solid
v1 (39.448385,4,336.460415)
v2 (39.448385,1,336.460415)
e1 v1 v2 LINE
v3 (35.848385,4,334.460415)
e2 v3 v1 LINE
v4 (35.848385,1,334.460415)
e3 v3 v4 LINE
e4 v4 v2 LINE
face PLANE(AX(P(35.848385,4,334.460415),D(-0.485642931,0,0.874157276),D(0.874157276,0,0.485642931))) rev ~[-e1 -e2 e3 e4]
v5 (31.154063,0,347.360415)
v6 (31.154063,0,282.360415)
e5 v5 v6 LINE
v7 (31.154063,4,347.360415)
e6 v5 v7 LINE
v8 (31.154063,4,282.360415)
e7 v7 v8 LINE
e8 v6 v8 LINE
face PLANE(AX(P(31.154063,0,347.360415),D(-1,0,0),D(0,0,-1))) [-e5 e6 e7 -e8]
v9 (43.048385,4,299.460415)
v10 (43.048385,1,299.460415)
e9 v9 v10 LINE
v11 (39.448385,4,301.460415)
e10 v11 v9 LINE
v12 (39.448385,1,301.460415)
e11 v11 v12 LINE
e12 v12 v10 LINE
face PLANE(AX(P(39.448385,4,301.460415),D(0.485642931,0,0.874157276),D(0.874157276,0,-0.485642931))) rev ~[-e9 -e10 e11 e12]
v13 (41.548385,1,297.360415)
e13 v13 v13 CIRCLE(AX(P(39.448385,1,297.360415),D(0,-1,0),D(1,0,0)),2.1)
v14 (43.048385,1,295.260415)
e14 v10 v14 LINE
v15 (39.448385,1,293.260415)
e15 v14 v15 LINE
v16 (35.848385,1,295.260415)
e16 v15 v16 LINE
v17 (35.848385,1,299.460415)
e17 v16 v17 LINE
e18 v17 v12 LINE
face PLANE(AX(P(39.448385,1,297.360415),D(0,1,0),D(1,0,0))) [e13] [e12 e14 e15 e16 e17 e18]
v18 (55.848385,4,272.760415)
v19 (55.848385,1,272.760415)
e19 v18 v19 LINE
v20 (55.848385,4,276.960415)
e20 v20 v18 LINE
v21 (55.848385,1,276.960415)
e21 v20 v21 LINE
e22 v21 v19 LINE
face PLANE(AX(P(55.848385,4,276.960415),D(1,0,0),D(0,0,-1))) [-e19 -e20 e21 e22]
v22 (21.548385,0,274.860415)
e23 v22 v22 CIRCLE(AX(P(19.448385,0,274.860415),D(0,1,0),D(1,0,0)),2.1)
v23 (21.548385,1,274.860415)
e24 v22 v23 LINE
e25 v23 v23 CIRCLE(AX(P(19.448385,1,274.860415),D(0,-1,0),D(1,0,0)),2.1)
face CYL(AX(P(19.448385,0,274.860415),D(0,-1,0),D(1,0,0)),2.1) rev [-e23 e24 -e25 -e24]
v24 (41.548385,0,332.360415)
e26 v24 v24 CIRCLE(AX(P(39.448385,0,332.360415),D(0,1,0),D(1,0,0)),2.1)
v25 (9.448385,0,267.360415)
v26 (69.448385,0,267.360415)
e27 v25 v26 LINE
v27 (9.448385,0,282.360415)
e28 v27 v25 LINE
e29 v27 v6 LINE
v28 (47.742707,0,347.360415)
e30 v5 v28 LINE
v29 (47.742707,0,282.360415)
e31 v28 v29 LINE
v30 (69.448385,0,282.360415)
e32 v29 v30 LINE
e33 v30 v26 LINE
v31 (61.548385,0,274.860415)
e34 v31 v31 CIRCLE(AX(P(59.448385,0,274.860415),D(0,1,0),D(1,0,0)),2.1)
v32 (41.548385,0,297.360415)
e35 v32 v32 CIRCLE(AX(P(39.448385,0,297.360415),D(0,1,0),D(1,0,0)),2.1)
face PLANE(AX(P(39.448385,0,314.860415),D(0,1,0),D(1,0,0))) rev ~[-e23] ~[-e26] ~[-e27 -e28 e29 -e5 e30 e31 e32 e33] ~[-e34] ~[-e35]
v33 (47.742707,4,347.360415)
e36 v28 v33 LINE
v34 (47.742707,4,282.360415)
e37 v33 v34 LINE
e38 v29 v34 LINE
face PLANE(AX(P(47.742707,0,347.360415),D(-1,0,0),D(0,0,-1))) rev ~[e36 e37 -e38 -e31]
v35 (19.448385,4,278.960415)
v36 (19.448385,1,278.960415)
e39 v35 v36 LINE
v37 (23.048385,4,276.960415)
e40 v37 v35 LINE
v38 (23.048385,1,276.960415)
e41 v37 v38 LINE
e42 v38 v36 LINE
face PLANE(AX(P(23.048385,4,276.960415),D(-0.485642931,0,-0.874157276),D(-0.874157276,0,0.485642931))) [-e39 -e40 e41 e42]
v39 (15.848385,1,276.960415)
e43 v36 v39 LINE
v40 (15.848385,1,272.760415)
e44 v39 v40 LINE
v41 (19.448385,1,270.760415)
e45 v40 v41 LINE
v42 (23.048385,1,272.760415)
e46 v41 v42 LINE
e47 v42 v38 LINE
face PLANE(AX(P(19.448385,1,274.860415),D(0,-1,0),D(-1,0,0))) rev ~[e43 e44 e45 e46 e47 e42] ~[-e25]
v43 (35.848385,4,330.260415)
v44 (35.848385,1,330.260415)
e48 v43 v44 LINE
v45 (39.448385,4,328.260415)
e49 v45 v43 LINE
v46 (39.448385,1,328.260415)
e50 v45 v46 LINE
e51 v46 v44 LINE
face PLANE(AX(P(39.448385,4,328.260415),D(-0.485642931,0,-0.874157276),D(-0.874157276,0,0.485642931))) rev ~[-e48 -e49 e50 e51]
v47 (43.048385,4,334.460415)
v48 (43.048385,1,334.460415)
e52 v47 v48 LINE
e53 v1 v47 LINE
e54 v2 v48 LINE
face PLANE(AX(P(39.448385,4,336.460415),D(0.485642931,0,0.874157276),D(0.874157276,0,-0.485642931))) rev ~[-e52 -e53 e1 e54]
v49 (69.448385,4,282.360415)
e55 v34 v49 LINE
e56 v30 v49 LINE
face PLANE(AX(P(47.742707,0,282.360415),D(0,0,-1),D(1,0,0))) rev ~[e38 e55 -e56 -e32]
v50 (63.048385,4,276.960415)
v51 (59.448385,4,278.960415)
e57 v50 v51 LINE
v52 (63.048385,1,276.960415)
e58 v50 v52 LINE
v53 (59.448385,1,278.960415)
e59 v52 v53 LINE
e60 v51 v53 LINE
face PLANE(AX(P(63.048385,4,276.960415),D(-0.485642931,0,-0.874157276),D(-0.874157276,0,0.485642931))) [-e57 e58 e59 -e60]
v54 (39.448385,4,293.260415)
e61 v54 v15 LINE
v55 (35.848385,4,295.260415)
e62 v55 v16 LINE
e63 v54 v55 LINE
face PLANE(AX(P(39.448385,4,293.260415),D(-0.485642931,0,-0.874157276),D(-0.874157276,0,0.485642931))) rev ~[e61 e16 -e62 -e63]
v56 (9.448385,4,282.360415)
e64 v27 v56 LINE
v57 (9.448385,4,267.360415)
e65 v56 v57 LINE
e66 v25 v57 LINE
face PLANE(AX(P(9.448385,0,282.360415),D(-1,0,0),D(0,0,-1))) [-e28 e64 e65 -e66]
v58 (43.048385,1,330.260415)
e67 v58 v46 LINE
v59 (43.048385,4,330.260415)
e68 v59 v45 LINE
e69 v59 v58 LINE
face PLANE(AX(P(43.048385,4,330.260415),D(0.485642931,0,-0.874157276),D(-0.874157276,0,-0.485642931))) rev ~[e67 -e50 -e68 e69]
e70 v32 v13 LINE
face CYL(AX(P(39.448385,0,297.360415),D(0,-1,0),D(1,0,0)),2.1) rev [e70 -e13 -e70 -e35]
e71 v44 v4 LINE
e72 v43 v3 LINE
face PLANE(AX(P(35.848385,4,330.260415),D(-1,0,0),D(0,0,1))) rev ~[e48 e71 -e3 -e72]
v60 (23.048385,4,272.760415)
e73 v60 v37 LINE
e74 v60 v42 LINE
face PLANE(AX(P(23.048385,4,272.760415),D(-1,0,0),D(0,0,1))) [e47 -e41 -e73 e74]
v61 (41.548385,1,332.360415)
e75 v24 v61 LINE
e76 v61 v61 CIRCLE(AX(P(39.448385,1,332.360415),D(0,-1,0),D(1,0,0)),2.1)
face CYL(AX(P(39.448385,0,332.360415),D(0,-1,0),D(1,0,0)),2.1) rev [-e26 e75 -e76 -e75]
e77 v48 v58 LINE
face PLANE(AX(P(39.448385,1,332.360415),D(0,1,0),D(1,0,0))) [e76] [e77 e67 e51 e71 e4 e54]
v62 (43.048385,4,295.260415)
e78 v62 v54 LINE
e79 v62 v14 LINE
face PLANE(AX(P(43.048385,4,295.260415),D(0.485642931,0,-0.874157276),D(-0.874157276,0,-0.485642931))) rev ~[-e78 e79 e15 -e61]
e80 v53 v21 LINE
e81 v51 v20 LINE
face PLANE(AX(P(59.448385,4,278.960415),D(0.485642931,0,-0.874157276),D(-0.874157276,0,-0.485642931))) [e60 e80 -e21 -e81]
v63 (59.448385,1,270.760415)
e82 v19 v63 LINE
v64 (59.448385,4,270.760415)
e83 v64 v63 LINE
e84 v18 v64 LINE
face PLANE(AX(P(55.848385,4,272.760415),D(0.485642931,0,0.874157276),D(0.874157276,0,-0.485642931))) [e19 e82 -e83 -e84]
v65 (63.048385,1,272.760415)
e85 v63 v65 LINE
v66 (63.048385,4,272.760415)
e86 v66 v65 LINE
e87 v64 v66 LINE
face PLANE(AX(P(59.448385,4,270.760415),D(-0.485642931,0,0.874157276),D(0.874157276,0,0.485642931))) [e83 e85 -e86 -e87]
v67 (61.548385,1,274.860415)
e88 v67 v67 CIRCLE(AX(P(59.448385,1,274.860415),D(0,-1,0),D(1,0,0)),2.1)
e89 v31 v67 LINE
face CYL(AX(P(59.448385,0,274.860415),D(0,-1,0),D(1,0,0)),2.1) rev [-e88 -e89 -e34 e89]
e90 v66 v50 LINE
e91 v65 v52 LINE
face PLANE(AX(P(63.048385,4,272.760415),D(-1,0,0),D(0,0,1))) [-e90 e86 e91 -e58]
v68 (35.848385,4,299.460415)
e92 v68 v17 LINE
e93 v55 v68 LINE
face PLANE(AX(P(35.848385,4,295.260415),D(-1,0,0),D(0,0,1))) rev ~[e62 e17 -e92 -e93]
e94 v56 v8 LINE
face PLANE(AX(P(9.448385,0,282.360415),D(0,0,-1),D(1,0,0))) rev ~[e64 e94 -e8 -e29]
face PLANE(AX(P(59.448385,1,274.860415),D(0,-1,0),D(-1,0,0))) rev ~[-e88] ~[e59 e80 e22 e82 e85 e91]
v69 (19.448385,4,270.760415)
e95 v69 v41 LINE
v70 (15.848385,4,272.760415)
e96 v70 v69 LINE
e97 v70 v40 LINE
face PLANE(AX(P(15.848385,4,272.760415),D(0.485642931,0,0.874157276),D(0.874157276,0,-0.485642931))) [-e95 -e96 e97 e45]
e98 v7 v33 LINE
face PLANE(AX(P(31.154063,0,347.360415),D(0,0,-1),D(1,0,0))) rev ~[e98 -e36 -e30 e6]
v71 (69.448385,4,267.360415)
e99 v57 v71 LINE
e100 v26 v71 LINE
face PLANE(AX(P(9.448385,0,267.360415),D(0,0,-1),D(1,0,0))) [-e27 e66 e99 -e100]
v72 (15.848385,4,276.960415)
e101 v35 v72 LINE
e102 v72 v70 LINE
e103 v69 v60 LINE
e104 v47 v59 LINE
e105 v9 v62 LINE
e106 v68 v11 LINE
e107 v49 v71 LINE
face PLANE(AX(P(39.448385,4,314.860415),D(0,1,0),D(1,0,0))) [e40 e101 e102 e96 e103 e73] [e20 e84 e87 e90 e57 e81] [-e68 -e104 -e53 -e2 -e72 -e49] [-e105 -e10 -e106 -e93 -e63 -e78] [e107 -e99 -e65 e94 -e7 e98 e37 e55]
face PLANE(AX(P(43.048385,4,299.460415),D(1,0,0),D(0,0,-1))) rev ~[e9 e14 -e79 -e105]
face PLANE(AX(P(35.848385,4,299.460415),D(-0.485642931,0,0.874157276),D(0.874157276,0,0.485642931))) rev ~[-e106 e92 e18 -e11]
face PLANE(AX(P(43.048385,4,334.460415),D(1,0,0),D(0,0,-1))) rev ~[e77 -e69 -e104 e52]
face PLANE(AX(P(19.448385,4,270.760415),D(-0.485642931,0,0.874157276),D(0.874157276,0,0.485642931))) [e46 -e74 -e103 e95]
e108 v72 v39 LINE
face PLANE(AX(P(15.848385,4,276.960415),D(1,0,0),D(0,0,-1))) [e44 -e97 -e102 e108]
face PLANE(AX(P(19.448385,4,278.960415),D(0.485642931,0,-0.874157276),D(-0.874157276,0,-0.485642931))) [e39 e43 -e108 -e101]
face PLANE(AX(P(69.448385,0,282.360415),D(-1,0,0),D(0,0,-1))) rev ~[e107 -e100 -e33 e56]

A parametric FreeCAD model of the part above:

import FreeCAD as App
import Part
import Sketcher
from FreeCAD import Vector


def add_polygon(sketch, points):
    """Adds a closed chain of lines whose ends are joined by coincident constraints."""
    first, n = sketch.GeometryCount, len(points)
    for a, b in zip(points, points[1:] + points[:1]):
        sketch.addGeometry(Part.LineSegment(App.Vector(*a, 0), App.Vector(*b, 0)), False)
    for i in range(n):
        sketch.addConstraint(Sketcher.Constraint("Coincident", first + i, 2, first + (i + 1) % n, 1))

doc = App.newDocument("Part")
body = doc.addObject("PartDesign::Body", "Body")

sketch1 = body.newObject("Sketcher::SketchObject", "Sketch")
sketch1.AttachmentSupport = (doc.getObject("XZ_Plane"), [""])
sketch1.MapMode = "FlatFace"
add_polygon(sketch1, [(31.154063, 282.360415), (31.154063, 347.360415), (47.742707, 347.360415), (47.742707, 282.360415), (69.448385, 282.360415), (69.448385, 267.360415), (9.448385, 267.360415), (9.448385, 282.360415)])
sketch1.addGeometry(Part.Circle(Vector(39.448385, 332.360415, 0), Vector(0, 0, 1), 2.1), False)
sketch1.addGeometry(Part.Circle(Vector(19.448385, 274.860415, 0), Vector(0, 0, 1), 2.1), False)
sketch1.addGeometry(Part.Circle(Vector(39.448385, 297.360415, 0), Vector(0, 0, 1), 2.1), False)
sketch1.addGeometry(Part.Circle(Vector(59.448385, 274.860415, 0), Vector(0, 0, 1), 2.1), False)
sketch1.addConstraint(Sketcher.Constraint("Vertical", 0))
sketch1.addConstraint(Sketcher.Constraint("Horizontal", 1))
sketch1.addConstraint(Sketcher.Constraint("Vertical", 2))
sketch1.addConstraint(Sketcher.Constraint("Horizontal", 3))
sketch1.addConstraint(Sketcher.Constraint("Vertical", 4))
sketch1.addConstraint(Sketcher.Constraint("Horizontal", 5))
sketch1.addConstraint(Sketcher.Constraint("Vertical", 6))
sketch1.addConstraint(Sketcher.Constraint("Horizontal", 7))
sketch1.addConstraint(Sketcher.Constraint("Equal", 8, 9))
sketch1.addConstraint(Sketcher.Constraint("Equal", 9, 10))
sketch1.addConstraint(Sketcher.Constraint("Equal", 10, 11))
sketch1.addConstraint(Sketcher.Constraint("Horizontal", 9, 3, 11, 3))
sketch1.addConstraint(Sketcher.Constraint("Horizontal", 3, 2, 6, 2))
sketch1.addConstraint(Sketcher.Constraint("Vertical", 8, 3, 10, 3))
sketch1.addConstraint(Sketcher.Constraint("Equal", 3, 7))
sketch1.addConstraint(Sketcher.Constraint("Diameter", 8, 4.2))
sketch1.addConstraint(Sketcher.Constraint("DistanceX", 5, 2, 5, 1, 60.0))
sketch1.addConstraint(Sketcher.Constraint("DistanceY", 0, 1, 0, 2, 65.0))
sketch1.addConstraint(Sketcher.Constraint("DistanceY", 4, 2, 4, 1, 15.0))
sketch1.addConstraint(Sketcher.Constraint("DistanceX", 9, 3, 8, 3, 20.0))
sketch1.addConstraint(Sketcher.Constraint("DistanceY", 10, 3, 8, 3, 35.0))
sketch1.addConstraint(Sketcher.Constraint("DistanceX", 10, 3, 11, 3, 20.0))
sketch1.addConstraint(Sketcher.Constraint("DistanceY", 8, 3, 0, 2, 15.0))
sketch1.addConstraint(Sketcher.Constraint("DistanceX", 11, 3, 3, 2, 10.0))
sketch1.addConstraint(Sketcher.Constraint("DistanceY", 9, 3, 8, 3, 57.5))
sketch1.addConstraint(Sketcher.Constraint("DistanceX", 1, 1, 1, 2, 16.588644))
sketch1.addConstraint(Sketcher.Constraint("DistanceX", -1, 1, 8, 3, 39.448385))
sketch1.addConstraint(Sketcher.Constraint("DistanceY", -1, 1, 8, 3, 332.360415))
pad1 = body.newObject("PartDesign::Pad", "Pad")
pad1.Profile = sketch1
pad1.Length = 4
pad1.Reversed = True

sketch2 = body.newObject("Sketcher::SketchObject", "Sketch001")
sketch2.AttachmentSupport = (doc.getObject("XZ_Plane"), [""])
sketch2.MapMode = "FlatFace"
sketch2.AttachmentOffset = App.Placement(Vector(0, 0, -4), App.Rotation())
add_polygon(sketch2, [(15.848385, 272.760415), (15.848385, 276.960415), (19.448385, 278.960415), (23.048385, 276.960415), (23.048385, 272.760415), (19.448385, 270.760415)])
add_polygon(sketch2, [(55.848385, 272.760415), (55.848385, 276.960415), (59.448385, 278.960415), (63.048385, 276.960415), (63.048385, 272.760415), (59.448385, 270.760415)])
sketch2.addConstraint(Sketcher.Constraint("Vertical", 0))
sketch2.addConstraint(Sketcher.Constraint("Vertical", 3))
sketch2.addConstraint(Sketcher.Constraint("Vertical", 6))
sketch2.addConstraint(Sketcher.Constraint("Vertical", 9))
sketch2.addConstraint(Sketcher.Constraint("Parallel", 1, 4))
sketch2.addConstraint(Sketcher.Constraint("Parallel", 2, 5))
sketch2.addConstraint(Sketcher.Constraint("Parallel", 4, 7))
sketch2.addConstraint(Sketcher.Constraint("Parallel", 5, 8))
sketch2.addConstraint(Sketcher.Constraint("Parallel", 7, 10))
sketch2.addConstraint(Sketcher.Constraint("Parallel", 8, 11))
sketch2.addConstraint(Sketcher.Constraint("Horizontal", 0, 2, 2, 2))
sketch2.addConstraint(Sketcher.Constraint("Horizontal", 3, 2, 5, 2))
sketch2.addConstraint(Sketcher.Constraint("Horizontal", 2, 2, 6, 2))
sketch2.addConstraint(Sketcher.Constraint("Horizontal", 1, 2, 7, 2))
sketch2.addConstraint(Sketcher.Constraint("Horizontal", 6, 2, 8, 2))
sketch2.addConstraint(Sketcher.Constraint("Horizontal", 5, 2, 9, 2))
sketch2.addConstraint(Sketcher.Constraint("Horizontal", 4, 2, 10, 2))
sketch2.addConstraint(Sketcher.Constraint("Vertical", 1, 2, 4, 2))
sketch2.addConstraint(Sketcher.Constraint("DistanceY", 0, 1, 0, 2, 4.2))
sketch2.addConstraint(Sketcher.Constraint("DistanceY", 0, 2, 1, 2, 2.0))
sketch2.addConstraint(Sketcher.Constraint("DistanceX", 0, 2, 6, 2, 40.0))
sketch2.addConstraint(Sketcher.Constraint("DistanceX", 0, 2, 1, 2, 3.6))
sketch2.addConstraint(Sketcher.Constraint("DistanceX", -1, 1, 0, 2, 15.848385))
sketch2.addConstraint(Sketcher.Constraint("DistanceY", -1, 1, 0, 2, 276.960415))
pocket1 = body.newObject("PartDesign::Pocket", "Pocket")
pocket1.Profile = sketch2
pocket1.Length = 3
pocket1.Reversed = True

sketch3 = body.newObject("Sketcher::SketchObject", "Sketch002")
sketch3.AttachmentSupport = (doc.getObject("XZ_Plane"), [""])
sketch3.MapMode = "FlatFace"
sketch3.AttachmentOffset = App.Placement(Vector(0, 0, -4), App.Rotation())
add_polygon(sketch3, [(39.448385, 301.460415), (43.048385, 299.460415), (43.048385, 295.260415), (39.448385, 293.260415), (35.848385, 295.260415), (35.848385, 299.460415)])
add_polygon(sketch3, [(39.448385, 328.260415), (35.848385, 330.260415), (35.848385, 334.460415), (39.448385, 336.460415), (43.048385, 334.460415), (43.048385, 330.260415)])
sketch3.addConstraint(Sketcher.Constraint("Vertical", 1))
sketch3.addConstraint(Sketcher.Constraint("Vertical", 4))
sketch3.addConstraint(Sketcher.Constraint("Vertical", 7))
sketch3.addConstraint(Sketcher.Constraint("Vertical", 10))
sketch3.addConstraint(Sketcher.Constraint("Parallel", 0, 3))
sketch3.addConstraint(Sketcher.Constraint("Parallel", 2, 5))
sketch3.addConstraint(Sketcher.Constraint("Parallel", 3, 6))
sketch3.addConstraint(Sketcher.Constraint("Parallel", 5, 8))
sketch3.addConstraint(Sketcher.Constraint("Parallel", 6, 9))
sketch3.addConstraint(Sketcher.Constraint("Parallel", 8, 11))
sketch3.addConstraint(Sketcher.Constraint("Horizontal", 1, 2, 3, 2))
sketch3.addConstraint(Sketcher.Constraint("Horizontal", 0, 2, 4, 2))
sketch3.addConstraint(Sketcher.Constraint("Horizontal", 7, 2, 9, 2))
sketch3.addConstraint(Sketcher.Constraint("Horizontal", 6, 2, 10, 2))
sketch3.addConstraint(Sketcher.Constraint("Vertical", 2, 2, 5, 2))
sketch3.addConstraint(Sketcher.Constraint("Vertical", 4, 2, 6, 2))
sketch3.addConstraint(Sketcher.Constraint("Vertical", 5, 2, 8, 2))
sketch3.addConstraint(Sketcher.Constraint("Equal", 4, 7))
sketch3.addConstraint(Sketcher.Constraint("DistanceY", 1, 2, 1, 1, 4.2))
sketch3.addConstraint(Sketcher.Constraint("DistanceY", 2, 2, 1, 2, 2.0))
sketch3.addConstraint(Sketcher.Constraint("DistanceY", 3, 2, 6, 2, 35.0))
sketch3.addConstraint(Sketcher.Constraint("DistanceX", 2, 2, 1, 2, 3.6))
sketch3.addConstraint(Sketcher.Constraint("DistanceX", -1, 1, 0, 2, 43.048385))
sketch3.addConstraint(Sketcher.Constraint("DistanceY", -1, 1, 0, 2, 299.460415))
pocket2 = body.newObject("PartDesign::Pocket", "Pocket001")
pocket2.Profile = sketch3
pocket2.Length = 3
pocket2.Reversed = True

doc.recompute()
